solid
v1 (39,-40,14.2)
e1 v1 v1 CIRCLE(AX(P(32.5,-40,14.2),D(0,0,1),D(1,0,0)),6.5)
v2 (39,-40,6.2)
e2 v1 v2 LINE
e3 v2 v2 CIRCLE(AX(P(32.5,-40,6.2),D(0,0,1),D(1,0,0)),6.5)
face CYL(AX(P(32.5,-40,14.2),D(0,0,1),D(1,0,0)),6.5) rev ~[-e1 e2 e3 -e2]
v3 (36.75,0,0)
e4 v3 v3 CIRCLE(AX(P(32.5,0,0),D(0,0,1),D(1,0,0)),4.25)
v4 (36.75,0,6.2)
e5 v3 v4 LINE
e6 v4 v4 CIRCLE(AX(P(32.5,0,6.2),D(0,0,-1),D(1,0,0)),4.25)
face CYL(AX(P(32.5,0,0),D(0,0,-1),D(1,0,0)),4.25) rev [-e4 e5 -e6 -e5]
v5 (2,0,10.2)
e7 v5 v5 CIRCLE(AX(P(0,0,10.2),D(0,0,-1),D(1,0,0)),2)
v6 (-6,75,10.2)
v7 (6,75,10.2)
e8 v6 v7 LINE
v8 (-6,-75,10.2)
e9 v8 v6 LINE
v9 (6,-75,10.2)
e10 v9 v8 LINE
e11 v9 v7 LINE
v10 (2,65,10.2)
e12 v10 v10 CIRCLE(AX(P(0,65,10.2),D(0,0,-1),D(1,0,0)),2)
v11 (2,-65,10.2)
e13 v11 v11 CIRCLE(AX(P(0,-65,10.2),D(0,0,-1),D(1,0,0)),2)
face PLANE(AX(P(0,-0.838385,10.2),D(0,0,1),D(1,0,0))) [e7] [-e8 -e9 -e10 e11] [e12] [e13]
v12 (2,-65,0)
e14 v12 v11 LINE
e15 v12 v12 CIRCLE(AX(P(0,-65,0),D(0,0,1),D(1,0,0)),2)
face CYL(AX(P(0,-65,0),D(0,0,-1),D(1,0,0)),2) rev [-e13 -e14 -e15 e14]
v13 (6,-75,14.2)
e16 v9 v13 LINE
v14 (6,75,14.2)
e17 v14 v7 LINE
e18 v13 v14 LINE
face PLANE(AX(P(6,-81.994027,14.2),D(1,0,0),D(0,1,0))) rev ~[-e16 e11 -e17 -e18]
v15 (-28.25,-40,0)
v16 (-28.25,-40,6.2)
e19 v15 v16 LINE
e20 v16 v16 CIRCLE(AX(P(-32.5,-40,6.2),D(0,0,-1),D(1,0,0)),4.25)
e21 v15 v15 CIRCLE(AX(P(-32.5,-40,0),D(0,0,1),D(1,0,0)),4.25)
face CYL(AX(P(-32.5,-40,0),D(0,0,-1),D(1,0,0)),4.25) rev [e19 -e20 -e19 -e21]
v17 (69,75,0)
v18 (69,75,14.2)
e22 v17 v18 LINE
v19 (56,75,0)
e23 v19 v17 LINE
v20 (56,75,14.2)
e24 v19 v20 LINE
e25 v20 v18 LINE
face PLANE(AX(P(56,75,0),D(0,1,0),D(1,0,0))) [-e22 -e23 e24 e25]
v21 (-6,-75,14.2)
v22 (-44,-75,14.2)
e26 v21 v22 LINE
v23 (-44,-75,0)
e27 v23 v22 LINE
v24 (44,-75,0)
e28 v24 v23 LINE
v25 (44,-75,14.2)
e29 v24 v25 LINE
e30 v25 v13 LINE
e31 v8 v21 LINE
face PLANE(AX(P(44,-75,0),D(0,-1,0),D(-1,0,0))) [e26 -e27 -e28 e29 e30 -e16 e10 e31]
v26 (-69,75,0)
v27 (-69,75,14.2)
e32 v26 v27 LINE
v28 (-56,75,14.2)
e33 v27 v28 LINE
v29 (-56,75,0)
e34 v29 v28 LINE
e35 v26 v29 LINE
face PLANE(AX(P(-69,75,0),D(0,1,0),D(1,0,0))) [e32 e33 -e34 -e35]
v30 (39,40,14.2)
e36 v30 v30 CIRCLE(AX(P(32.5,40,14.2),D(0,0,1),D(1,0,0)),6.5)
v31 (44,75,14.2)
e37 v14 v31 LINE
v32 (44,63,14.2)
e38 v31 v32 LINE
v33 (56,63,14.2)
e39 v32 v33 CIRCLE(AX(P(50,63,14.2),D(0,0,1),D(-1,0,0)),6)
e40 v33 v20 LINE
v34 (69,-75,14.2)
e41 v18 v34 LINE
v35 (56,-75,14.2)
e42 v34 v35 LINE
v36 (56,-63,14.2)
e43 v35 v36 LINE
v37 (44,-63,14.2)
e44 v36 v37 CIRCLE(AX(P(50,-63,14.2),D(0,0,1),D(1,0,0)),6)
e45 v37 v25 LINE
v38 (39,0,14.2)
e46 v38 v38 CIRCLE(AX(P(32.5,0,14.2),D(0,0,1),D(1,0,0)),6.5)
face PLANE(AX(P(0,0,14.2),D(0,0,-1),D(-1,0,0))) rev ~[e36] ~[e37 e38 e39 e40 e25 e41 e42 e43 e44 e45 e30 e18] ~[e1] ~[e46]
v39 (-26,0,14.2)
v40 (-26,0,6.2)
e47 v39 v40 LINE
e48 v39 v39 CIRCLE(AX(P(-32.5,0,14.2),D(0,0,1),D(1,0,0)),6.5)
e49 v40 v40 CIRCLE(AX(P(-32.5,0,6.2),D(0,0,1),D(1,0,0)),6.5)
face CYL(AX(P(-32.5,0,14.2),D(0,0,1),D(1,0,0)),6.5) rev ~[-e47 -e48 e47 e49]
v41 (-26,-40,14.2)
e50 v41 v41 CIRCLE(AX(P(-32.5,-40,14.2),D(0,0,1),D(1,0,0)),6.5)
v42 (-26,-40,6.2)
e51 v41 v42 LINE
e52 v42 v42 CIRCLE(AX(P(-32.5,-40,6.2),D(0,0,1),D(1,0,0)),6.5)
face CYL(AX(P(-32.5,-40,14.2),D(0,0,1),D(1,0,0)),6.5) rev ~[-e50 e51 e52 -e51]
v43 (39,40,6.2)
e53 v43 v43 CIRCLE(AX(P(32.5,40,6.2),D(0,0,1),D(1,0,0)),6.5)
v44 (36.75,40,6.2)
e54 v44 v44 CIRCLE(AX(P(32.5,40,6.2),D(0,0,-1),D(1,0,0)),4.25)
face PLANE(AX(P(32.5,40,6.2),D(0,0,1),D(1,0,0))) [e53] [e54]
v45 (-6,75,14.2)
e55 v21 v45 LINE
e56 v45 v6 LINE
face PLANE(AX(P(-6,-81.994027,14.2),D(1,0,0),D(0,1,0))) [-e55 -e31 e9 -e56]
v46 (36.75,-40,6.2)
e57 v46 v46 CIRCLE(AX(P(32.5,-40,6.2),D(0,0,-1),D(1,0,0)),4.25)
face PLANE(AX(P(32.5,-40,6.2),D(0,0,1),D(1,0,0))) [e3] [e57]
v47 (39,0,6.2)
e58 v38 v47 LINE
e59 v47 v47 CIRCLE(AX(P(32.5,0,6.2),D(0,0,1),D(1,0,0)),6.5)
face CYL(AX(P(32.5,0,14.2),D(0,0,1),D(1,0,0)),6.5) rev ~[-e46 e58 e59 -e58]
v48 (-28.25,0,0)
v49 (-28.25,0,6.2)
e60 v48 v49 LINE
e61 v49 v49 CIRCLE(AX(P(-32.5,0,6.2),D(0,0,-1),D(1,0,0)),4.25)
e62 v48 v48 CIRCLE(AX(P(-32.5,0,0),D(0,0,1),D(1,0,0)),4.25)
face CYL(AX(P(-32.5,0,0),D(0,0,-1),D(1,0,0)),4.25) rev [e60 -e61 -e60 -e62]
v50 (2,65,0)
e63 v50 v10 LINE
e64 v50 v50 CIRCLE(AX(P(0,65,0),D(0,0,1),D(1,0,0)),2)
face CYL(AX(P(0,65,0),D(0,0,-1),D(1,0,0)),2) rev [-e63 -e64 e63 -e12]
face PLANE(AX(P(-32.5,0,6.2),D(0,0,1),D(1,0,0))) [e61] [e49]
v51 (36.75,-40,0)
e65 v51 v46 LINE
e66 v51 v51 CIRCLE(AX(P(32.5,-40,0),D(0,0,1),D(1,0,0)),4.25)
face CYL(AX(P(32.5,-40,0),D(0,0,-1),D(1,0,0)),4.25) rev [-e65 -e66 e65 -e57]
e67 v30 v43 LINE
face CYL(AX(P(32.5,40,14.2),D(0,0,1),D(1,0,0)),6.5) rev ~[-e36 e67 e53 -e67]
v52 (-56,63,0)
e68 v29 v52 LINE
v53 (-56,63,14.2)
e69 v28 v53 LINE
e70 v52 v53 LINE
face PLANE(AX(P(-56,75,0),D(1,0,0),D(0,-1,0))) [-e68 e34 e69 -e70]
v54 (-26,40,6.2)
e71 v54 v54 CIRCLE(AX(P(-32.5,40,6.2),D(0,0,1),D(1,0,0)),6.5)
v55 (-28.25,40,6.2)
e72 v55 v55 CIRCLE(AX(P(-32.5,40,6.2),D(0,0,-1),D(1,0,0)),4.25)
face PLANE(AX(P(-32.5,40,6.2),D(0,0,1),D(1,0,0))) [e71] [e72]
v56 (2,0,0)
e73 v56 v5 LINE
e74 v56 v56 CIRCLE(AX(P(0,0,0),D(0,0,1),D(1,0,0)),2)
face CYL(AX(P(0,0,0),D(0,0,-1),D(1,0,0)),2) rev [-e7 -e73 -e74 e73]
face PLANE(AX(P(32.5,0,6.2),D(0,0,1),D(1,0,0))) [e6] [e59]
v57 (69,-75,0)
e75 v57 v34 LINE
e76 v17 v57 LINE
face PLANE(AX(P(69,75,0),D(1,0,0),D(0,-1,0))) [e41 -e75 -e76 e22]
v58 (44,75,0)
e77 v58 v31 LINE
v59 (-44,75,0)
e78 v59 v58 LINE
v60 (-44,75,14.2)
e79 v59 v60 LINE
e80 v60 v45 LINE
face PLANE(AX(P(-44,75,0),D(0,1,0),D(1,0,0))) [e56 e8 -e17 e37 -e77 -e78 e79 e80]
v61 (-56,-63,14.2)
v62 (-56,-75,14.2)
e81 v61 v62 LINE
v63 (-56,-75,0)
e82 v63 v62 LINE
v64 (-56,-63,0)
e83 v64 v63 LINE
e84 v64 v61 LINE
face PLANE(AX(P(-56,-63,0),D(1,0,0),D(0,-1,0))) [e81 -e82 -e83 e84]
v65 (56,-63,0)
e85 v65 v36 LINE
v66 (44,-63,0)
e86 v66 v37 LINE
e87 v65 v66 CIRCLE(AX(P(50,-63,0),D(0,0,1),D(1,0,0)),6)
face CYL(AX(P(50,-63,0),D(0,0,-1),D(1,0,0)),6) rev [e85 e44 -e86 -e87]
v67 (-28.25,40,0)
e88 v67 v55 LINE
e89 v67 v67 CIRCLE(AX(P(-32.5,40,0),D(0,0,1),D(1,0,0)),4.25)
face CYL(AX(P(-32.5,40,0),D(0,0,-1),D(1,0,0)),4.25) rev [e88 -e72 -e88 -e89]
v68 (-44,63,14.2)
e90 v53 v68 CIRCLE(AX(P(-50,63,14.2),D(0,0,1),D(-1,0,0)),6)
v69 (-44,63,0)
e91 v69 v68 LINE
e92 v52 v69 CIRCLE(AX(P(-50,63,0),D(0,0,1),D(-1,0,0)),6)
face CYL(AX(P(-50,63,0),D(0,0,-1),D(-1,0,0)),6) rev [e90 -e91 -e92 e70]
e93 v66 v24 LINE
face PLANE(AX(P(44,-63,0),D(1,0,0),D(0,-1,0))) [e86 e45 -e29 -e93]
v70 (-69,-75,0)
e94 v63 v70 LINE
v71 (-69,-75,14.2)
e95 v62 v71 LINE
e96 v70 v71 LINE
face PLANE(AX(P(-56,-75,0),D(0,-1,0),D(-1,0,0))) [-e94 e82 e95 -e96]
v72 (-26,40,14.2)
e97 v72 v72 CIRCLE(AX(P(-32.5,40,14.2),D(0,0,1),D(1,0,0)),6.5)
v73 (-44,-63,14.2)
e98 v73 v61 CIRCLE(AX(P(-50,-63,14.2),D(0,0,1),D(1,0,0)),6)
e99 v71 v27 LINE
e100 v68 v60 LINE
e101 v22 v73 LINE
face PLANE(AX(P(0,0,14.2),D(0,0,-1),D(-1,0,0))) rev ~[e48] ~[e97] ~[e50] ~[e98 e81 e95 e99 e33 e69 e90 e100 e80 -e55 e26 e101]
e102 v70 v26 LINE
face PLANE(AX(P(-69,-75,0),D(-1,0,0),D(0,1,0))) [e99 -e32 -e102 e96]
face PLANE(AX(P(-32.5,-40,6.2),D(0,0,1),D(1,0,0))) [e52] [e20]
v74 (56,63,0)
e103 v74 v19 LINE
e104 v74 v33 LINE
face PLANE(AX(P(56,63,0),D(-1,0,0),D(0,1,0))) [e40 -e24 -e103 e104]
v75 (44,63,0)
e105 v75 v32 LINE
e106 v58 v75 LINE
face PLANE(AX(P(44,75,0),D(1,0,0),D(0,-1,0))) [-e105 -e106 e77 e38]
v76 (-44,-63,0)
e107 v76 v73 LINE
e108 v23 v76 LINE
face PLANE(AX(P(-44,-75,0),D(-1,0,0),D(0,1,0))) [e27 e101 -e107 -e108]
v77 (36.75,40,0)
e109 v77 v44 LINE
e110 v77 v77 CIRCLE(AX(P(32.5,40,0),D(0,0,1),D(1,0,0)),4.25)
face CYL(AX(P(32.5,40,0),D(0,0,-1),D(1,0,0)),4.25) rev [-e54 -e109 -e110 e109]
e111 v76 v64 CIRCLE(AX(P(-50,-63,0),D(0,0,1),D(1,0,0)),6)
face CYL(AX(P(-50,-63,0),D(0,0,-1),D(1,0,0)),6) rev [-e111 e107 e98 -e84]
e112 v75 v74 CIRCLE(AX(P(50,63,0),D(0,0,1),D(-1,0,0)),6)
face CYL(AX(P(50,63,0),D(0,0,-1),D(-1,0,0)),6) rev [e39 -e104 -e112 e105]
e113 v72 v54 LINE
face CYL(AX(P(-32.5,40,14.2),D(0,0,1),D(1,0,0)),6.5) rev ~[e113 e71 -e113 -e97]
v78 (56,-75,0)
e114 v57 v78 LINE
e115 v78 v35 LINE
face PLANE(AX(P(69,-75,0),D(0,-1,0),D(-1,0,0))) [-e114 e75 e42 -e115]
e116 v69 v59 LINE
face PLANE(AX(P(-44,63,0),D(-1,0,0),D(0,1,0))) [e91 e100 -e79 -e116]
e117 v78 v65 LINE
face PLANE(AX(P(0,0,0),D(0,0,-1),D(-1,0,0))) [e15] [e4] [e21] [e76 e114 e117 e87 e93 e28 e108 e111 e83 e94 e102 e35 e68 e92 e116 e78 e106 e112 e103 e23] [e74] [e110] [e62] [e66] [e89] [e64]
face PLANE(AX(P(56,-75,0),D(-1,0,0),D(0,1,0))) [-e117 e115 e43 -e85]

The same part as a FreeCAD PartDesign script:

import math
import FreeCAD as App
import Part
import Sketcher
from FreeCAD import Vector
Q = App.Units.Quantity


def add_polygon(sketch, points):
    """Adds a closed chain of lines whose ends are joined by coincident constraints."""
    first, n = sketch.GeometryCount, len(points)
    for a, b in zip(points, points[1:] + points[:1]):
        sketch.addGeometry(Part.LineSegment(App.Vector(*a, 0), App.Vector(*b, 0)), False)
    for i in range(n):
        sketch.addConstraint(Sketcher.Constraint("Coincident", first + i, 2, first + (i + 1) % n, 1))

doc = App.newDocument("Part")
params = doc.addObject("Spreadsheet::Sheet", "Params")
for row, (alias, value) in enumerate([
    ("sketch1_diameter", "4 mm"),
    ("sketch1_radius", "6 mm"),
    ("sketch1_diameter2", "8.5 mm"),
    ("sketch1_width", "13 mm"),
    ("sketch1_width2", "88 mm"),
    ("pad1_length", "14.2 mm"),
    ("sketch2_width", "12 mm"),
    ("pocket1_length", "4 mm"),
    ("sketch3_diameter", "13 mm"),
    ("pocket2_length", "8 mm"),
], start=1):
    params.set(f"A{row}", alias)
    params.set(f"B{row}", "=" + value)
    params.setAlias(f"B{row}", alias)

body = doc.addObject("PartDesign::Body", "Body")

sketch1 = body.newObject("Sketcher::SketchObject", "Sketch")
sketch1.AttachmentSupport = (doc.getObject("XY_Plane"), [""])
sketch1.MapMode = "FlatFace"
sketch1.addGeometry([
    Part.LineSegment(Vector(56, -75, 0), Vector(69, -75, 0)),
    Part.LineSegment(Vector(69, -75, 0), Vector(69, 75, 0)),
    Part.LineSegment(Vector(69, 75, 0), Vector(56, 75, 0)),
    Part.LineSegment(Vector(56, 75, 0), Vector(56, 63, 0)),
    Part.ArcOfCircle(Part.Circle(Vector(50, 63, 0), Vector(0, 0, 1), 6), math.radians(180), math.radians(360)),
    Part.LineSegment(Vector(44, 63, 0), Vector(44, 75, 0)),
    Part.LineSegment(Vector(44, 75, 0), Vector(-44, 75, 0)),
    Part.LineSegment(Vector(-44, 75, 0), Vector(-44, 63, 0)),
    Part.ArcOfCircle(Part.Circle(Vector(-50, 63, 0), Vector(0, 0, 1), 6), math.radians(180), math.radians(360)),
    Part.LineSegment(Vector(-56, 63, 0), Vector(-56, 75, 0)),
    Part.LineSegment(Vector(-56, 75, 0), Vector(-69, 75, 0)),
    Part.LineSegment(Vector(-69, 75, 0), Vector(-69, -75, 0)),
    Part.LineSegment(Vector(-69, -75, 0), Vector(-56, -75, 0)),
    Part.LineSegment(Vector(-56, -75, 0), Vector(-56, -63, 0)),
    Part.ArcOfCircle(Part.Circle(Vector(-50, -63, 0), Vector(0, 0, 1), 6), math.radians(0), math.radians(180)),
    Part.LineSegment(Vector(-44, -63, 0), Vector(-44, -75, 0)),
    Part.LineSegment(Vector(-44, -75, 0), Vector(44, -75, 0)),
    Part.LineSegment(Vector(44, -75, 0), Vector(44, -63, 0)),
    Part.ArcOfCircle(Part.Circle(Vector(50, -63, 0), Vector(0, 0, 1), 6), math.radians(0), math.radians(180)),
    Part.LineSegment(Vector(56, -63, 0), Vector(56, -75, 0)),
    Part.Circle(Vector(32.5, -40, 0), Vector(0, 0, 1), 4.2),
    Part.Circle(Vector(0, -65, 0), Vector(0, 0, 1), 2),
    Part.Circle(Vector(-32.5, -40, 0), Vector(0, 0, 1), 4.2),
    Part.Circle(Vector(32.5, 0, 0), Vector(0, 0, 1), 4.2),
    Part.Circle(Vector(32.5, 40, 0), Vector(0, 0, 1), 4.2),
    Part.Circle(Vector(0, 0, 0), Vector(0, 0, 1), 2),
    Part.Circle(Vector(-32.5, 0, 0), Vector(0, 0, 1), 4.2),
    Part.Circle(Vector(0, 65, 0), Vector(0, 0, 1), 2),
    Part.Circle(Vector(-32.5, 40, 0), Vector(0, 0, 1), 4.2),
], False)
sketch1.addConstraint([
    Sketcher.Constraint("Coincident", 0, 2, 1, 1),
    Sketcher.Constraint("Coincident", 1, 2, 2, 1),
    Sketcher.Constraint("Coincident", 2, 2, 3, 1),
    Sketcher.Constraint("Tangent", 3, 2, 4, 2),
    Sketcher.Constraint("Tangent", 4, 1, 5, 1),
    Sketcher.Constraint("Coincident", 5, 2, 6, 1),
    Sketcher.Constraint("Coincident", 6, 2, 7, 1),
    Sketcher.Constraint("Tangent", 7, 2, 8, 2),
    Sketcher.Constraint("Tangent", 8, 1, 9, 1),
    Sketcher.Constraint("Coincident", 9, 2, 10, 1),
    Sketcher.Constraint("Coincident", 10, 2, 11, 1),
    Sketcher.Constraint("Coincident", 11, 2, 12, 1),
    Sketcher.Constraint("Coincident", 12, 2, 13, 1),
    Sketcher.Constraint("Tangent", 13, 2, 14, 2),
    Sketcher.Constraint("Tangent", 14, 1, 15, 1),
    Sketcher.Constraint("Coincident", 15, 2, 16, 1),
    Sketcher.Constraint("Coincident", 16, 2, 17, 1),
    Sketcher.Constraint("Tangent", 17, 2, 18, 2),
    Sketcher.Constraint("Tangent", 18, 1, 19, 1),
    Sketcher.Constraint("Coincident", 19, 2, 0, 1),
    Sketcher.Constraint("Horizontal", 0),
    Sketcher.Constraint("Vertical", 1),
    Sketcher.Constraint("Horizontal", 2),
    Sketcher.Constraint("Vertical", 3),
    Sketcher.Constraint("Vertical", 5),
    Sketcher.Constraint("Horizontal", 6),
    Sketcher.Constraint("Vertical", 7),
    Sketcher.Constraint("Vertical", 9),
    Sketcher.Constraint("Horizontal", 10),
    Sketcher.Constraint("Vertical", 11),
    Sketcher.Constraint("Horizontal", 12),
    Sketcher.Constraint("Vertical", 13),
    Sketcher.Constraint("Vertical", 15),
    Sketcher.Constraint("Horizontal", 16),
    Sketcher.Constraint("Vertical", 17),
    Sketcher.Constraint("Vertical", 19),
    Sketcher.Constraint("Coincident", 25, 3, -1, 1),
    Sketcher.Constraint("Equal", 4, 8),
    Sketcher.Constraint("Equal", 8, 14),
    Sketcher.Constraint("Equal", 14, 18),
    Sketcher.Constraint("Equal", 20, 22),
    Sketcher.Constraint("Equal", 22, 23),
    Sketcher.Constraint("Equal", 23, 24),
    Sketcher.Constraint("Equal", 21, 25),
    Sketcher.Constraint("Equal", 24, 26),
    Sketcher.Constraint("Equal", 25, 27),
    Sketcher.Constraint("Equal", 26, 28),
    Sketcher.Constraint("Symmetric", 4, 3, 14, 3, -1, 1),
    Sketcher.Constraint("Symmetric", 8, 3, 18, 3, -1, 1),
    Sketcher.Constraint("Symmetric", 22, 3, 24, 3, -1, 1),
    Sketcher.Constraint("Symmetric", 23, 3, 26, 3, -1, 1),
    Sketcher.Constraint("Symmetric", 21, 3, 27, 3, -1, 1),
    Sketcher.Constraint("Symmetric", 20, 3, 28, 3, -1, 1),
    Sketcher.Constraint("Symmetric", 0, 2, 10, 2, -1, 1),
    Sketcher.Constraint("Symmetric", 4, 3, 8, 3, -2),
    Sketcher.Constraint("Symmetric", 20, 3, 22, 3, -2),
    Sketcher.Constraint("PointOnObject", 21, 3, -2),
    Sketcher.Constraint("PointOnObject", 23, 3, -1),
    Sketcher.Constraint("Horizontal", 2, 2, 5, 2),
    Sketcher.Constraint("Horizontal", 6, 2, 9, 2),
    Sketcher.Constraint("Horizontal", 0, 2, 11, 2),
    Sketcher.Constraint("Horizontal", 12, 2, 15, 2),
    Sketcher.Constraint("Vertical", 20, 3, 23, 3),
    Sketcher.Constraint("Diameter", 21, Q("4 mm")),
    Sketcher.Constraint("Radius", 4, Q("6 mm")),
    Sketcher.Constraint("Diameter", 20, Q("8.5 mm")),
    Sketcher.Constraint("DistanceX", 0, 1, 0, 2, Q("13 mm")),
    Sketcher.Constraint("DistanceX", 6, 2, 6, 1, Q("88 mm")),
    Sketcher.Constraint("DistanceY", 1, 1, 1, 2, Q("150 mm")),
    Sketcher.Constraint("DistanceY", 3, 2, 3, 1, Q("12 mm")),
    Sketcher.Constraint("DistanceY", 20, 3, -1, 1, Q("40 mm")),
    Sketcher.Constraint("DistanceY", 21, 3, -1, 1, Q("65 mm")),
    Sketcher.Constraint("DistanceX", 22, 3, 20, 3, Q("65 mm")),
])
sketch1.setExpression("Constraints[63]", "Params.sketch1_diameter")
sketch1.setExpression("Constraints[64]", "Params.sketch1_radius")
sketch1.setExpression("Constraints[65]", "Params.sketch1_diameter2")
sketch1.setExpression("Constraints[66]", "Params.sketch1_width")
sketch1.setExpression("Constraints[67]", "Params.sketch1_width2")
pad1 = body.newObject("PartDesign::Pad", "Pad")
pad1.Profile = sketch1
pad1.setExpression("Length", "Params.pad1_length")

sketch2 = body.newObject("Sketcher::SketchObject", "Sketch001")
sketch2.AttachmentSupport = (doc.getObject("XY_Plane"), [""])
sketch2.MapMode = "FlatFace"
sketch2.AttachmentOffset = App.Placement(Vector(0, 0, 14.2), App.Rotation())
add_polygon(sketch2, [(-6, 80), (-6, -82), (6, -82), (6, 80)])
sketch2.addConstraint([
    Sketcher.Constraint("Vertical", 0),
    Sketcher.Constraint("Horizontal", 1),
    Sketcher.Constraint("Vertical", 2),
    Sketcher.Constraint("Horizontal", 3),
    Sketcher.Constraint("DistanceX", 1, 1, 1, 2, Q("12 mm")),
    Sketcher.Constraint("DistanceX", 0, 2, -1, 1, Q("6 mm")),
    Sketcher.Constraint("DistanceY", 0, 2, 0, 1, Q("162.311285 mm")),
    Sketcher.Constraint("DistanceY", 0, 2, -1, 1, Q("81.994027 mm")),
])
sketch2.setExpression("Constraints[8]", "Params.sketch2_width")
pocket1 = body.newObject("PartDesign::Pocket", "Pocket")
pocket1.Profile = sketch2
pocket1.setExpression("Length", "Params.pocket1_length")

sketch3 = body.newObject("Sketcher::SketchObject", "Sketch002")
sketch3.AttachmentSupport = (doc.getObject("XY_Plane"), [""])
sketch3.MapMode = "FlatFace"
sketch3.AttachmentOffset = App.Placement(Vector(0, 0, 14.2), App.Rotation())
sketch3.addGeometry([
    Part.Circle(Vector(-32, 40, 0), Vector(0, 0, 1), 6),
    Part.Circle(Vector(-32, 0, 0), Vector(0, 0, 1), 6),
    Part.Circle(Vector(-32, -40, 0), Vector(0, 0, 1), 6),
    Part.Circle(Vector(32, 40, 0), Vector(0, 0, 1), 6),
    Part.Circle(Vector(32, 0, 0), Vector(0, 0, 1), 6),
    Part.Circle(Vector(32, -40, 0), Vector(0, 0, 1), 6),
], False)
sketch3.addConstraint([
    Sketcher.Constraint("Equal", 0, 1),
    Sketcher.Constraint("Equal", 1, 2),
    Sketcher.Constraint("Equal", 2, 3),
    Sketcher.Constraint("Equal", 3, 4),
    Sketcher.Constraint("Equal", 4, 5),
    Sketcher.Constraint("Symmetric", 2, 3, 3, 3, -1, 1),
    Sketcher.Constraint("Symmetric", 1, 3, 4, 3, -1, 1),
    Sketcher.Constraint("Symmetric", 0, 3, 5, 3, -1, 1),
    Sketcher.Constraint("Symmetric", 0, 3, 3, 3, -2),
    Sketcher.Constraint("PointOnObject", 1, 3, -1),
    Sketcher.Constraint("Vertical", 0, 3, 1, 3),
    Sketcher.Constraint("Diameter", 0, Q("13 mm")),
    Sketcher.Constraint("DistanceY", -1, 1, 0, 3, Q("40 mm")),
    Sketcher.Constraint("DistanceX", 0, 3, 3, 3, Q("65 mm")),
])
sketch3.setExpression("Constraints[11]", "Params.sketch3_diameter")
pocket2 = body.newObject("PartDesign::Pocket", "Pocket001")
pocket2.Profile = sketch3
pocket2.setExpression("Length", "Params.pocket2_length")

doc.recompute()
